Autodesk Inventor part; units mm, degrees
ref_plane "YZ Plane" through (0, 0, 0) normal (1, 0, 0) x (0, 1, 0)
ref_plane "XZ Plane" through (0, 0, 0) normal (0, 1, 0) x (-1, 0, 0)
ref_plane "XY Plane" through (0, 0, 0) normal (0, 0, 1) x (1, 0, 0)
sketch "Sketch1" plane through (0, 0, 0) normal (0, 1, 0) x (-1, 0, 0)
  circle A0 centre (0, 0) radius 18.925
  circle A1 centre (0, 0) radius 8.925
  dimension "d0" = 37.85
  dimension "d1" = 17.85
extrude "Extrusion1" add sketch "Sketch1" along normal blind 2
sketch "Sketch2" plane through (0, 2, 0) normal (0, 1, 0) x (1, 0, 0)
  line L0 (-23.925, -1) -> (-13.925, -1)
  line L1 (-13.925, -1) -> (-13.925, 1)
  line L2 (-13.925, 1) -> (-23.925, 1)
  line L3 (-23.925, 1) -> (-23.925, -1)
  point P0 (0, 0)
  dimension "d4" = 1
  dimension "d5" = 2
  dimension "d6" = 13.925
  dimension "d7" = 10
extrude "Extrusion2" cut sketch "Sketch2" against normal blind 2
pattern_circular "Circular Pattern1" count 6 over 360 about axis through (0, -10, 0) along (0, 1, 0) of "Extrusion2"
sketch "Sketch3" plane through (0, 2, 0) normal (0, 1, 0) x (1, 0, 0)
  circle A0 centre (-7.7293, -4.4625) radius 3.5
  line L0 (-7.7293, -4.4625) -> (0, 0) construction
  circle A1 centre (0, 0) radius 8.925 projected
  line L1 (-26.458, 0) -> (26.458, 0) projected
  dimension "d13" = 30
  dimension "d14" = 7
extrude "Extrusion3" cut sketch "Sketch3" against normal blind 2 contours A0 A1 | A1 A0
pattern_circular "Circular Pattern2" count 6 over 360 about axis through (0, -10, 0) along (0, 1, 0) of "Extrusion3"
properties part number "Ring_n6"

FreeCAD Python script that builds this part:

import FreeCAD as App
import Part
import Sketcher
from FreeCAD import Vector


def add_polygon(sketch, points):
    """Adds a closed chain of lines whose ends are joined by coincident constraints."""
    first, n = sketch.GeometryCount, len(points)
    for a, b in zip(points, points[1:] + points[:1]):
        sketch.addGeometry(Part.LineSegment(App.Vector(*a, 0), App.Vector(*b, 0)), False)
    for i in range(n):
        sketch.addConstraint(Sketcher.Constraint("Coincident", first + i, 2, first + (i + 1) % n, 1))

doc = App.newDocument("Part")
params = doc.addObject("Spreadsheet::Sheet", "Params")
for row, (alias, value) in enumerate([
    ("sketch1_diameter", "37.85 mm"),
    ("sketch1_diameter2", "17.85 mm"),
    ("pad1_length", "2 mm"),
    ("sketch2_width", "10 mm"),
    ("sketch2_height", "2 mm"),
    ("pocket1_length", "2 mm"),
    ("sketch3_diameter", "7 mm"),
    ("pocket2_length", "2 mm"),
], start=1):
    params.set(f"A{row}", alias)
    params.set(f"B{row}", "=" + value)
    params.setAlias(f"B{row}", alias)

body = doc.addObject("PartDesign::Body", "Body")

# Sketch on XZ plane
sketch1 = body.newObject("Sketcher::SketchObject", "Sketch")
sketch1.AttachmentSupport = (doc.getObject("XZ_Plane"), [""])
sketch1.MapMode = "FlatFace"
sketch1.addGeometry(Part.Circle(Vector(0, 0, 0), Vector(0, 0, 1), 18.925), False)
sketch1.addGeometry(Part.Circle(Vector(0, 0, 0), Vector(0, 0, 1), 8.925), False)
sketch1.addConstraint(Sketcher.Constraint("Coincident", 0, 3, -1, 1))
sketch1.addConstraint(Sketcher.Constraint("Coincident", 1, 3, -1, 1))
sketch1.addConstraint(Sketcher.Constraint("Diameter", 0, 37.85))
sketch1.addConstraint(Sketcher.Constraint("Diameter", 1, 17.85))
sketch1.setExpression("Constraints[2]", "Params.sketch1_diameter")
sketch1.setExpression("Constraints[3]", "Params.sketch1_diameter2")
pad1 = body.newObject("PartDesign::Pad", "Pad")
pad1.Profile = sketch1
pad1.setExpression("Length", "Params.pad1_length")
pad1.Reversed = True

# Sketch on XZ plane
sketch2 = body.newObject("Sketcher::SketchObject", "Sketch001")
sketch2.AttachmentSupport = (doc.getObject("XZ_Plane"), [""])
sketch2.MapMode = "FlatFace"
sketch2.AttachmentOffset = App.Placement(Vector(0, 0, -2), App.Rotation())
add_polygon(sketch2, [(-23.925, -1), (-23.925, 1), (-13.925, 1), (-13.925, -1)])  # lines 0-3
sketch2.addConstraint(Sketcher.Constraint("Vertical", 0))
sketch2.addConstraint(Sketcher.Constraint("Horizontal", 1))
sketch2.addConstraint(Sketcher.Constraint("Vertical", 2))
sketch2.addConstraint(Sketcher.Constraint("Horizontal", 3))
sketch2.addConstraint(Sketcher.Constraint("DistanceX", 1, 1, 1, 2, 10.0))
sketch2.addConstraint(Sketcher.Constraint("DistanceY", 0, 1, 0, 2, 2.0))
sketch2.addConstraint(Sketcher.Constraint("DistanceY", -1, 1, 0, 2, 1.0))
sketch2.addConstraint(Sketcher.Constraint("DistanceX", 1, 2, -1, 1, 13.925))
sketch2.setExpression("Constraints[8]", "Params.sketch2_width")
sketch2.setExpression("Constraints[9]", "Params.sketch2_height")
pocket1 = body.newObject("PartDesign::Pocket", "Pocket")
pocket1.Profile = sketch2
pocket1.setExpression("Length", "Params.pocket1_length")
pocket1.Reversed = True
doc.recompute()

polarpattern = body.newObject("PartDesign::PolarPattern", "PolarPattern")
polarpattern.Originals = [pocket1]
polarpattern.Axis = (doc.getObject("Y_Axis"), [""])
polarpattern.Angle = 360
polarpattern.Occurrences = 6
body.Tip = polarpattern

# Sketch on XZ plane
sketch3 = body.newObject("Sketcher::SketchObject", "Sketch002")
sketch3.AttachmentSupport = (doc.getObject("XZ_Plane"), [""])
sketch3.MapMode = "FlatFace"
sketch3.AttachmentOffset = App.Placement(Vector(0, 0, -2), App.Rotation())
sketch3.addGeometry(Part.Circle(Vector(-7.7293, 4.4625, 0), Vector(0, 0, 1), 3.5), False)
sketch3.addConstraint(Sketcher.Constraint("Diameter", 0, 7.0))
sketch3.addConstraint(Sketcher.Constraint("DistanceX", 0, 3, -1, 1, 7.7293))
sketch3.addConstraint(Sketcher.Constraint("DistanceY", -1, 1, 0, 3, 4.4625))
sketch3.setExpression("Constraints[0]", "Params.sketch3_diameter")
pocket2 = body.newObject("PartDesign::Pocket", "Pocket001")
pocket2.Profile = sketch3
pocket2.setExpression("Length", "Params.pocket2_length")
pocket2.Reversed = True
doc.recompute()

polarpattern2 = body.newObject("PartDesign::PolarPattern", "PolarPattern001")
polarpattern2.Originals = [pocket2]
polarpattern2.Axis = (doc.getObject("Y_Axis"), [""])
polarpattern2.Angle = 360
polarpattern2.Occurrences = 6
body.Tip = polarpattern2

doc.recompute()
